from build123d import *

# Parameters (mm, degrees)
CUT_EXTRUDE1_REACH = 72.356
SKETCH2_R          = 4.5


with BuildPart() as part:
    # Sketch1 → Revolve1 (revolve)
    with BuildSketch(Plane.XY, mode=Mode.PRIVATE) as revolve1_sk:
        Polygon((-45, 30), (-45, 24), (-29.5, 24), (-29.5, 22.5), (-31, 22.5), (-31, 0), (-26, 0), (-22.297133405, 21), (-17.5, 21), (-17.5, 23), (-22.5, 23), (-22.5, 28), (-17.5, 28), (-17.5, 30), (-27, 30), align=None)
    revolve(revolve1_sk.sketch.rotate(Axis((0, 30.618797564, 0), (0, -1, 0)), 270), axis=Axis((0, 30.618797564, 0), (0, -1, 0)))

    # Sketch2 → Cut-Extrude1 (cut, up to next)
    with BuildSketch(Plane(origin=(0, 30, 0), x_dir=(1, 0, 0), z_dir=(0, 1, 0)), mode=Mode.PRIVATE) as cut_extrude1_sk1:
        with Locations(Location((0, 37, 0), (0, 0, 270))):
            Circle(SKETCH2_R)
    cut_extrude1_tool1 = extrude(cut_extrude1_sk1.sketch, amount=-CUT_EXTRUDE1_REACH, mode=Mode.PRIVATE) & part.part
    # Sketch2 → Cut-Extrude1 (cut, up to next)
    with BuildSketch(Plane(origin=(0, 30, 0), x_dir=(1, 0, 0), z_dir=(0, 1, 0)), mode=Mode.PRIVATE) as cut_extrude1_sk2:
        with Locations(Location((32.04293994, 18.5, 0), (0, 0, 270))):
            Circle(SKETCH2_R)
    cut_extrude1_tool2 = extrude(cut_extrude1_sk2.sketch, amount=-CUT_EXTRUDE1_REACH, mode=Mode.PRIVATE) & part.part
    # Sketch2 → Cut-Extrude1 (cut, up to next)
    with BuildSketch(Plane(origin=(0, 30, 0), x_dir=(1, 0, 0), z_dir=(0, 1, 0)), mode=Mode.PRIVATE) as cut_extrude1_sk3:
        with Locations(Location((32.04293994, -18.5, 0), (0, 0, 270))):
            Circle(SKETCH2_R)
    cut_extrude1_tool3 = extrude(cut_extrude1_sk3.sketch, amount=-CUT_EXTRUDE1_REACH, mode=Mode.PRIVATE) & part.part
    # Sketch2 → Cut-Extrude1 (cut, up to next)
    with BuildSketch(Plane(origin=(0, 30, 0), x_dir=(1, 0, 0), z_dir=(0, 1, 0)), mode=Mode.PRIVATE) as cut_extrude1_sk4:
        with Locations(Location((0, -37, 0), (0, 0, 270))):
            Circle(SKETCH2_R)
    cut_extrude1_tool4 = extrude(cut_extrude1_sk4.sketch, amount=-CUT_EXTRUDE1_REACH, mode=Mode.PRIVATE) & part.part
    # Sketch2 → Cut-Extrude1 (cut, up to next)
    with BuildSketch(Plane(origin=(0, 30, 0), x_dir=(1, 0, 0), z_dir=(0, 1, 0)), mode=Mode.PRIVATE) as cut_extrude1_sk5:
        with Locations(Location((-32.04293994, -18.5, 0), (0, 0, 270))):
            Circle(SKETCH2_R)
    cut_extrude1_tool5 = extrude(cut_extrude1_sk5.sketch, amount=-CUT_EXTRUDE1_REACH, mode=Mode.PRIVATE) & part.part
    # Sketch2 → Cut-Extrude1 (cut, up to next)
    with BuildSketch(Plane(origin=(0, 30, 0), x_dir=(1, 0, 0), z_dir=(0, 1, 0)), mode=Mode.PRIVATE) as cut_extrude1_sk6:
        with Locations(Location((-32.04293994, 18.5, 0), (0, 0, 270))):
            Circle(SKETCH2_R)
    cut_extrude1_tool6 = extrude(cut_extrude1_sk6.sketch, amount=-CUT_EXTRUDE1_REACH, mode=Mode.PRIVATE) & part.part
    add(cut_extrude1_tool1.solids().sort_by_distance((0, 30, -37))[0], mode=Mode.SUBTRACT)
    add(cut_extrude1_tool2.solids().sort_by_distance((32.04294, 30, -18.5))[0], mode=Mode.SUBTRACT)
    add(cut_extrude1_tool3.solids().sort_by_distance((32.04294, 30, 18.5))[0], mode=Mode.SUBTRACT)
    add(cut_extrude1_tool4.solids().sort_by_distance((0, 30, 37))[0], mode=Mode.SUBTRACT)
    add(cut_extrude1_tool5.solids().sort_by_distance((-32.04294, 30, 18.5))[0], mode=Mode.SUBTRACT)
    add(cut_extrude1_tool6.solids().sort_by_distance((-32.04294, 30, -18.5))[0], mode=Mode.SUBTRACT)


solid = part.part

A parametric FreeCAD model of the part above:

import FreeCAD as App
import Part
import Sketcher
from FreeCAD import Vector
Q = App.Units.Quantity


def add_polygon(sketch, points):
    """Adds a closed chain of lines whose ends are joined by coincident constraints."""
    first, n = sketch.GeometryCount, len(points)
    for a, b in zip(points, points[1:] + points[:1]):
        sketch.addGeometry(Part.LineSegment(App.Vector(*a, 0), App.Vector(*b, 0)), False)
    for i in range(n):
        sketch.addConstraint(Sketcher.Constraint("Coincident", first + i, 2, first + (i + 1) % n, 1))

doc = App.newDocument("Part")
params = doc.addObject("Spreadsheet::Sheet", "Params")
for row, (alias, value) in enumerate([
    ("sketch1_width", "5 mm"),
    ("sketch1_height", "6 mm"),
    ("sketch1_height2", "2 mm"),
    ("sketch1_width2", "15.5 mm"),
    ("sketch1_width3", "1.5 mm"),
    ("revolution_angle", "360 deg"),
    ("sketch2_diameter", "9 mm"),
    ("sketch3_diameter", "9 mm"),
    ("sketch4_diameter", "9 mm"),
    ("sketch5_diameter", "9 mm"),
    ("sketch6_diameter", "9 mm"),
    ("sketch7_diameter", "9 mm"),
], start=1):
    params.set(f"A{row}", alias)
    params.set(f"B{row}", "=" + value)
    params.setAlias(f"B{row}", alias)

body = doc.addObject("PartDesign::Body", "Body")

sketch1 = body.newObject("Sketcher::SketchObject", "Sketch")
sketch1.AttachmentSupport = (doc.getObject("XY_Plane"), [""])
sketch1.MapMode = "FlatFace"
add_polygon(sketch1, [(-45, 30), (-45, 24), (-29.5, 24), (-29.5, 22.5), (-31, 22.5), (-31, 0), (-26, 0), (-22.297133, 21), (-17.5, 21), (-17.5, 23), (-22.5, 23), (-22.5, 28), (-17.5, 28), (-17.5, 30)])
sketch1.addConstraint([
    Sketcher.Constraint("Vertical", 0),
    Sketcher.Constraint("Horizontal", 1),
    Sketcher.Constraint("Vertical", 2),
    Sketcher.Constraint("Horizontal", 3),
    Sketcher.Constraint("Vertical", 4),
    Sketcher.Constraint("Horizontal", 5),
    Sketcher.Constraint("Horizontal", 7),
    Sketcher.Constraint("Vertical", 8),
    Sketcher.Constraint("Horizontal", 9),
    Sketcher.Constraint("Vertical", 10),
    Sketcher.Constraint("Horizontal", 11),
    Sketcher.Constraint("Vertical", 12),
    Sketcher.Constraint("Horizontal", 13),
    Sketcher.Constraint("PointOnObject", 4, 2, -1),
    Sketcher.Constraint("Vertical", 8, 2, 11, 2),
    Sketcher.Constraint("Equal", 5, 9),
    Sketcher.Constraint("Equal", 3, 2),
    Sketcher.Constraint("Equal", 11, 10),
    Sketcher.Constraint("Equal", 8, 12),
    Sketcher.Constraint("DistanceX", 5, 1, 5, 2, 5.0),
    Sketcher.Constraint("DistanceY", 0, 2, 0, 1, 6.0),
    Sketcher.Constraint("DistanceY", 8, 1, 8, 2, 2.0),
    Sketcher.Constraint("Angle", 6, Q("80 deg")),
    Sketcher.Constraint("DistanceX", 1, 1, 1, 2, 15.5),
    Sketcher.Constraint("DistanceX", 3, 2, 3, 1, 1.5),
    Sketcher.Constraint("DistanceX", 13, 2, 13, 1, 27.5),
    Sketcher.Constraint("DistanceY", 4, 2, 4, 1, 22.5),
    Sketcher.Constraint("DistanceX", 0, 2, -1, 1, 45.0),
])
sketch1.setExpression("Constraints[33]", "Params.sketch1_width")
sketch1.setExpression("Constraints[34]", "Params.sketch1_height")
sketch1.setExpression("Constraints[35]", "Params.sketch1_height2")
sketch1.setExpression("Constraints[37]", "Params.sketch1_width2")
sketch1.setExpression("Constraints[38]", "Params.sketch1_width3")
revolution = body.newObject("PartDesign::Revolution", "Revolution")
revolution.Profile = sketch1
revolution.ReferenceAxis = (sketch1, ["V_Axis"])
revolution.setExpression("Angle", "Params.revolution_angle")

sketch2 = body.newObject("Sketcher::SketchObject", "Sketch001")
sketch2.AttachmentSupport = (doc.getObject("XZ_Plane"), [""])
sketch2.MapMode = "FlatFace"
sketch2.AttachmentOffset = App.Placement(Vector(0, 0, -30), App.Rotation())
sketch2.addGeometry(Part.Circle(Vector(0, -37, 0), Vector(0, 0, 1), 4.5), False)
sketch2.addConstraint([
    Sketcher.Constraint("PointOnObject", 0, 3, -2),
    Sketcher.Constraint("Diameter", 0, 9.0),
    Sketcher.Constraint("DistanceY", 0, 3, -1, 1, 37.0),
])
sketch2.setExpression("Constraints[1]", "Params.sketch2_diameter")
pocket1 = body.newObject("PartDesign::Pocket", "Pocket")
pocket1.Profile = sketch2
pocket1.Type = "UpToFirst"
pocket1.Reversed = True

sketch3 = body.newObject("Sketcher::SketchObject", "Sketch002")
sketch3.AttachmentSupport = (doc.getObject("XZ_Plane"), [""])
sketch3.MapMode = "FlatFace"
sketch3.AttachmentOffset = App.Placement(Vector(0, 0, -30), App.Rotation())
sketch3.addGeometry(Part.Circle(Vector(32.04294, -18.5, 0), Vector(0, 0, 1), 4.5), False)
sketch3.addConstraint([
    Sketcher.Constraint("Diameter", 0, 9.0),
    Sketcher.Constraint("DistanceY", 0, 3, -1, 1, 18.5),
    Sketcher.Constraint("DistanceX", -1, 1, 0, 3, 32.04294),
])
sketch3.setExpression("Constraints[0]", "Params.sketch3_diameter")
pocket2 = body.newObject("PartDesign::Pocket", "Pocket001")
pocket2.Profile = sketch3
pocket2.Type = "UpToFirst"
pocket2.Reversed = True

sketch4 = body.newObject("Sketcher::SketchObject", "Sketch003")
sketch4.AttachmentSupport = (doc.getObject("XZ_Plane"), [""])
sketch4.MapMode = "FlatFace"
sketch4.AttachmentOffset = App.Placement(Vector(0, 0, -30), App.Rotation())
sketch4.addGeometry(Part.Circle(Vector(32.04294, 18.5, 0), Vector(0, 0, 1), 4.5), False)
sketch4.addConstraint([
    Sketcher.Constraint("Diameter", 0, 9.0),
    Sketcher.Constraint("DistanceY", -1, 1, 0, 3, 18.5),
    Sketcher.Constraint("DistanceX", -1, 1, 0, 3, 32.04294),
])
sketch4.setExpression("Constraints[0]", "Params.sketch4_diameter")
pocket3 = body.newObject("PartDesign::Pocket", "Pocket002")
pocket3.Profile = sketch4
pocket3.Type = "UpToFirst"
pocket3.Reversed = True

sketch5 = body.newObject("Sketcher::SketchObject", "Sketch004")
sketch5.AttachmentSupport = (doc.getObject("XZ_Plane"), [""])
sketch5.MapMode = "FlatFace"
sketch5.AttachmentOffset = App.Placement(Vector(0, 0, -30), App.Rotation())
sketch5.addGeometry(Part.Circle(Vector(0, 37, 0), Vector(0, 0, 1), 4.5), False)
sketch5.addConstraint([
    Sketcher.Constraint("PointOnObject", 0, 3, -2),
    Sketcher.Constraint("Diameter", 0, 9.0),
    Sketcher.Constraint("DistanceY", -1, 1, 0, 3, 37.0),
])
sketch5.setExpression("Constraints[1]", "Params.sketch5_diameter")
pocket4 = body.newObject("PartDesign::Pocket", "Pocket003")
pocket4.Profile = sketch5
pocket4.Type = "UpToFirst"
pocket4.Reversed = True

sketch6 = body.newObject("Sketcher::SketchObject", "Sketch005")
sketch6.AttachmentSupport = (doc.getObject("XZ_Plane"), [""])
sketch6.MapMode = "FlatFace"
sketch6.AttachmentOffset = App.Placement(Vector(0, 0, -30), App.Rotation())
sketch6.addGeometry(Part.Circle(Vector(-32.04294, 18.5, 0), Vector(0, 0, 1), 4.5), False)
sketch6.addConstraint([
    Sketcher.Constraint("Diameter", 0, 9.0),
    Sketcher.Constraint("DistanceY", -1, 1, 0, 3, 18.5),
    Sketcher.Constraint("DistanceX", 0, 3, -1, 1, 32.04294),
])
sketch6.setExpression("Constraints[0]", "Params.sketch6_diameter")
pocket5 = body.newObject("PartDesign::Pocket", "Pocket004")
pocket5.Profile = sketch6
pocket5.Type = "UpToFirst"
pocket5.Reversed = True

sketch7 = body.newObject("Sketcher::SketchObject", "Sketch006")
sketch7.AttachmentSupport = (doc.getObject("XZ_Plane"), [""])
sketch7.MapMode = "FlatFace"
sketch7.AttachmentOffset = App.Placement(Vector(0, 0, -30), App.Rotation())
sketch7.addGeometry(Part.Circle(Vector(-32.04294, -18.5, 0), Vector(0, 0, 1), 4.5), False)
sketch7.addConstraint([
    Sketcher.Constraint("Diameter", 0, 9.0),
    Sketcher.Constraint("DistanceY", 0, 3, -1, 1, 18.5),
    Sketcher.Constraint("DistanceX", 0, 3, -1, 1, 32.04294),
])
sketch7.setExpression("Constraints[0]", "Params.sketch7_diameter")
pocket6 = body.newObject("PartDesign::Pocket", "Pocket005")
pocket6.Profile = sketch7
pocket6.Type = "UpToFirst"
pocket6.Reversed = True

doc.recompute()
